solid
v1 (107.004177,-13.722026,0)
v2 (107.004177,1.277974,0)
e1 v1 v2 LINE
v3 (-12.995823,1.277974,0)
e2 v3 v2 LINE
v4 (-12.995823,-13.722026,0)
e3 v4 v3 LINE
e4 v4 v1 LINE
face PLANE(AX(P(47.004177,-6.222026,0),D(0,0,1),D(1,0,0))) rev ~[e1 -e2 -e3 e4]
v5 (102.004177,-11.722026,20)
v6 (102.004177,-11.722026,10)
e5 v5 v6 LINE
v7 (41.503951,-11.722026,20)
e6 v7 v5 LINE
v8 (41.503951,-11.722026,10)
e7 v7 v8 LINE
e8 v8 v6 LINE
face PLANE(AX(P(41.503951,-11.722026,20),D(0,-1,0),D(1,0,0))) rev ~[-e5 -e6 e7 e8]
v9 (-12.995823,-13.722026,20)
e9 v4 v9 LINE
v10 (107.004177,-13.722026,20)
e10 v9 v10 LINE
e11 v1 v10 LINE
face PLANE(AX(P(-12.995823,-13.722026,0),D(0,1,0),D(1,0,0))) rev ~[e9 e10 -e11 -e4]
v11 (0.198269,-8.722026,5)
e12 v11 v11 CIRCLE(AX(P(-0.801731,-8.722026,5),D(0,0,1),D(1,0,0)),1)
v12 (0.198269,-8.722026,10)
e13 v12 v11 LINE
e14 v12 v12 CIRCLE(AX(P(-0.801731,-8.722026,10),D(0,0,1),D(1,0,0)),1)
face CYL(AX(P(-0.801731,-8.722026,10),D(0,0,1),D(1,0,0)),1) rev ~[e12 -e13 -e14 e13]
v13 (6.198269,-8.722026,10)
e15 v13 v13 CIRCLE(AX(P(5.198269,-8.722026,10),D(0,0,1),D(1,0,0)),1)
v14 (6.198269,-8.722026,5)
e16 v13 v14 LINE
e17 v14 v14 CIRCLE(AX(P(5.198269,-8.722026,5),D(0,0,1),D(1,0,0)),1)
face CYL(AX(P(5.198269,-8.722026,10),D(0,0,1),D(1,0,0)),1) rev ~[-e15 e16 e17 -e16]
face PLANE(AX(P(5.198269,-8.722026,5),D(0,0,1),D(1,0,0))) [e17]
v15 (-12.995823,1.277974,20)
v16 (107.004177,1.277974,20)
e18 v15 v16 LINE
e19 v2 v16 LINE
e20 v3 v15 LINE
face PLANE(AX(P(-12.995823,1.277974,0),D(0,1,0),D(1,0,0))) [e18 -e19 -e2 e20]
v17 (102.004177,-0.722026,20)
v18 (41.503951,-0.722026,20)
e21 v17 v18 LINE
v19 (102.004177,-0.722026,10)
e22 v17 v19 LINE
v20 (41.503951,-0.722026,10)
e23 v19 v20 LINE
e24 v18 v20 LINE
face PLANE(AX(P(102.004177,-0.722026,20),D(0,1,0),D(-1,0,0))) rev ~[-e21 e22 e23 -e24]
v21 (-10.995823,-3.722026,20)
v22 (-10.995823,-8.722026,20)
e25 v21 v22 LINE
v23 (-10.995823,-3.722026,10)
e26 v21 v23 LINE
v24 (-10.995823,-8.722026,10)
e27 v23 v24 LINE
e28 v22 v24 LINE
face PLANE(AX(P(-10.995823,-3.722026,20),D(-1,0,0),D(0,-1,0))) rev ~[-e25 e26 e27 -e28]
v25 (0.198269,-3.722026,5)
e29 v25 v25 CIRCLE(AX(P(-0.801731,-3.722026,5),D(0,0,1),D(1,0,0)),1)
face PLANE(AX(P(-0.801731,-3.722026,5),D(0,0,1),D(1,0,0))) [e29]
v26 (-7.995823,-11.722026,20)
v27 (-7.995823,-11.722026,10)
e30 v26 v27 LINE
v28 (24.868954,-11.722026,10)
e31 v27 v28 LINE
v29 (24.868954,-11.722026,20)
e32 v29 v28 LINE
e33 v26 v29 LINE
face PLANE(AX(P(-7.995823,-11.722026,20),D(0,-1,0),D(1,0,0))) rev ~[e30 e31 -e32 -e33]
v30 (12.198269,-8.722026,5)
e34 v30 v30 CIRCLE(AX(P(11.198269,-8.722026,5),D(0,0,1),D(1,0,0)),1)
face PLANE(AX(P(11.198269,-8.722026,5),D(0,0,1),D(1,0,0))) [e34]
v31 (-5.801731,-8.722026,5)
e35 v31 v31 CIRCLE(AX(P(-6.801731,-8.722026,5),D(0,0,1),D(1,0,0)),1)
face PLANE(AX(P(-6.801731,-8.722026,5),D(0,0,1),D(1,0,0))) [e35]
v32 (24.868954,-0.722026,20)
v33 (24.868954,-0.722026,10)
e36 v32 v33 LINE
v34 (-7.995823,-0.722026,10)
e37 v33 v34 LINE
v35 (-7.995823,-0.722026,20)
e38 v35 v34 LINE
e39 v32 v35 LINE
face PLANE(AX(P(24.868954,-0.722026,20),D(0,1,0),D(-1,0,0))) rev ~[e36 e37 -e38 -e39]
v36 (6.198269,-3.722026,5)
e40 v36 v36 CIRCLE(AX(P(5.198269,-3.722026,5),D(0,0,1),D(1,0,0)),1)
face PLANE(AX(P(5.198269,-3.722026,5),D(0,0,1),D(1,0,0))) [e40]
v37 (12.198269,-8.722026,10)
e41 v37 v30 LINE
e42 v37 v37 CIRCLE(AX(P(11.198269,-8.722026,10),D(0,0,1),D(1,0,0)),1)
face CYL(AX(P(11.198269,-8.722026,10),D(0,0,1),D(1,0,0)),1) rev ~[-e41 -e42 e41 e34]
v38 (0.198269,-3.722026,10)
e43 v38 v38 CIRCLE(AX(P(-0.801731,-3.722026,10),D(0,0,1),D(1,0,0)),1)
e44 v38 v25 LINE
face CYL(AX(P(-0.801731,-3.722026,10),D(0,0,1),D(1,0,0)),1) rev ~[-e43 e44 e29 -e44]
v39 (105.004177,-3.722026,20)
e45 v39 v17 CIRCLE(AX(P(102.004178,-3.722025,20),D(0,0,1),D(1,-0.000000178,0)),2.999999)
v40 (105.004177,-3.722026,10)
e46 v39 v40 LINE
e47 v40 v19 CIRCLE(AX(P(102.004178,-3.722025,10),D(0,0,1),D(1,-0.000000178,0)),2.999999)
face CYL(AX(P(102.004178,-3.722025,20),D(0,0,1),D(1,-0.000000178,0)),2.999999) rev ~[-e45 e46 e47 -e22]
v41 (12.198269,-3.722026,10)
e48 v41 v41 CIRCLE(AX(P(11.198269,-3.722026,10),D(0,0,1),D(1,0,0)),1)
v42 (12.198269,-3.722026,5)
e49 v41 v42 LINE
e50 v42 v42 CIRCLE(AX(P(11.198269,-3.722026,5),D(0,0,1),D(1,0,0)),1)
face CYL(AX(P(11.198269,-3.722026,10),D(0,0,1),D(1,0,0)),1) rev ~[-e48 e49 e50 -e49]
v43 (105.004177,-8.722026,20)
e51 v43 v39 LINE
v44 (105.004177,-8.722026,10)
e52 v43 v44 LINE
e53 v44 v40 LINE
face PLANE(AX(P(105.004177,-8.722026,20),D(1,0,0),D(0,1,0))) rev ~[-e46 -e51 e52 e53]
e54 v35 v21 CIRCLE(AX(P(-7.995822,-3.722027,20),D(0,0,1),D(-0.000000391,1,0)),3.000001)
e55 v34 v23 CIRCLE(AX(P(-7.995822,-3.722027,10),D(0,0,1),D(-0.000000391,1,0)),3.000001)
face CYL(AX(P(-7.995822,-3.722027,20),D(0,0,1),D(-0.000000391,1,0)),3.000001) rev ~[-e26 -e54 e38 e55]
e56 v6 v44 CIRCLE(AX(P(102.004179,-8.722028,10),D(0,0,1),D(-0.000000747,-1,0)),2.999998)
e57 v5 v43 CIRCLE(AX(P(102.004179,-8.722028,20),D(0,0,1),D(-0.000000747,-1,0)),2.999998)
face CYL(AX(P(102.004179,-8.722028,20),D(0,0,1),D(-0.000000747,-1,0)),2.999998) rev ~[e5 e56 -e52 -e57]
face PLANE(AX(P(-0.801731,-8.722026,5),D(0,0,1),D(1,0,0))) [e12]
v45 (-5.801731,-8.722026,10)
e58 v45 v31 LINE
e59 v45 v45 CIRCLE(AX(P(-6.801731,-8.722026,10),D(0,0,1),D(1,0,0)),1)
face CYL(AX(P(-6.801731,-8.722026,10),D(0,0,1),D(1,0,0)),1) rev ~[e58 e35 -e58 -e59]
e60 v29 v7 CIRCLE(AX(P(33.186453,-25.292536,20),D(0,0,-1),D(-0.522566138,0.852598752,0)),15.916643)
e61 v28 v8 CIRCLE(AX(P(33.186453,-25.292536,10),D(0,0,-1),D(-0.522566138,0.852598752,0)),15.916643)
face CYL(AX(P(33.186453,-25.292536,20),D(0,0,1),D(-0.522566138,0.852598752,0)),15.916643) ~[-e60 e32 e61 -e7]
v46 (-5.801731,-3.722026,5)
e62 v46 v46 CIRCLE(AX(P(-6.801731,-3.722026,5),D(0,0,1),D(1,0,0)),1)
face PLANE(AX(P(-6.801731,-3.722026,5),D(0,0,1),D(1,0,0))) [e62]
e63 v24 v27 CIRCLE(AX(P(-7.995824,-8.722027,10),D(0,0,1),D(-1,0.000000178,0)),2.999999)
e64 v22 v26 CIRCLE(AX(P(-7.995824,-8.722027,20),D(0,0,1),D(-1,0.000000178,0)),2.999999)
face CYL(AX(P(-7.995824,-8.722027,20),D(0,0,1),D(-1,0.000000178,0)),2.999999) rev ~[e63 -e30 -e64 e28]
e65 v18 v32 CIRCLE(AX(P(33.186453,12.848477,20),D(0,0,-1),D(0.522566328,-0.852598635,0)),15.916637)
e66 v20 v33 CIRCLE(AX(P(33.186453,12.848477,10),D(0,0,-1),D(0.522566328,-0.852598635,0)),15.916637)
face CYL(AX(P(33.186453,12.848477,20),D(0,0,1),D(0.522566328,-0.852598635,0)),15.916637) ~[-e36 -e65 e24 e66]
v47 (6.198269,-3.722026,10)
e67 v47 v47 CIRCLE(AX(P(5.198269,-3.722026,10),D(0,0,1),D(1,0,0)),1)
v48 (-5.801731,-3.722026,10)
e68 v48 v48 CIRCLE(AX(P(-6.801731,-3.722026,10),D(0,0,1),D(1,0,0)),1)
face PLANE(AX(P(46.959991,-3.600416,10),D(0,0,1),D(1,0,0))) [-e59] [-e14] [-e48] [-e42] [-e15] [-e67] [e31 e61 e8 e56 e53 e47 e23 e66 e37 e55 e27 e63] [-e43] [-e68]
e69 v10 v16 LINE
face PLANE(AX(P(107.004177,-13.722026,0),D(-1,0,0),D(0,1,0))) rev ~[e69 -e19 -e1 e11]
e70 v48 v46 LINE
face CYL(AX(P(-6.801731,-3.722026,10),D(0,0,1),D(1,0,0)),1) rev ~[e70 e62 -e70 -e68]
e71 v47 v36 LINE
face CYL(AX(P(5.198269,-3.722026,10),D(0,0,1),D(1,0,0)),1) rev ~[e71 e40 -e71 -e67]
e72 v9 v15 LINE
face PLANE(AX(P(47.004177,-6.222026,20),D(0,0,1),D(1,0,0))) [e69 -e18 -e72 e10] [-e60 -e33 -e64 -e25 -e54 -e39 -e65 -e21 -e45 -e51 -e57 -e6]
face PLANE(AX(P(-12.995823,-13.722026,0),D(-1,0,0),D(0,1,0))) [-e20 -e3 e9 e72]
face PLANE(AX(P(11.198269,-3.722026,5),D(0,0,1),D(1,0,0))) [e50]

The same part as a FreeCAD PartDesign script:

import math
import FreeCAD as App
import Part
import Sketcher
from FreeCAD import Vector
Q = App.Units.Quantity


def add_polygon(sketch, points):
    """Adds a closed chain of lines whose ends are joined by coincident constraints."""
    first, n = sketch.GeometryCount, len(points)
    for a, b in zip(points, points[1:] + points[:1]):
        sketch.addGeometry(Part.LineSegment(App.Vector(*a, 0), App.Vector(*b, 0)), False)
    for i in range(n):
        sketch.addConstraint(Sketcher.Constraint("Coincident", first + i, 2, first + (i + 1) % n, 1))

doc = App.newDocument("Part")
body = doc.addObject("PartDesign::Body", "Body")

# Sketch on XY plane
sketch1 = body.newObject("Sketcher::SketchObject", "Sketch")
sketch1.AttachmentSupport = (doc.getObject("XY_Plane"), [""])
sketch1.MapMode = "FlatFace"
add_polygon(sketch1, [(-13, 1), (-13, -14), (107, -14), (107, 1)])  # lines 0-3
sketch1.addConstraint([
    Sketcher.Constraint("Vertical", 0),
    Sketcher.Constraint("Horizontal", 1),
    Sketcher.Constraint("Vertical", 2),
    Sketcher.Constraint("Horizontal", 3),
    Sketcher.Constraint("DistanceX", 1, 1, 1, 2, Q("120 mm")),
    Sketcher.Constraint("DistanceY", 0, 2, 0, 1, Q("15 mm")),
    Sketcher.Constraint("DistanceX", 0, 2, -1, 1, Q("12.995823 mm")),
    Sketcher.Constraint("DistanceY", 0, 2, -1, 1, Q("13.722026 mm")),
])
pad1 = body.newObject("PartDesign::Pad", "Pad")
pad1.Profile = sketch1
pad1.Length = 20

# Sketch on XY plane
sketch2 = body.newObject("Sketcher::SketchObject", "Sketch001")
sketch2.AttachmentSupport = (doc.getObject("XY_Plane"), [""])
sketch2.MapMode = "FlatFace"
sketch2.AttachmentOffset = App.Placement(Vector(0, 0, 20), App.Rotation())
sketch2.addGeometry([
    Part.LineSegment(Vector(24.9, -0.7, 0), Vector(-8, -0.7, 0)),  # 0
    Part.ArcOfCircle(Part.Circle(Vector(-8, -3.7, 0), Vector(0, 0, 1), 3), math.radians(90), math.radians(180)),  # 1
    Part.LineSegment(Vector(-11, -3.7, 0), Vector(-11, -8.7, 0)),  # 2
    Part.ArcOfCircle(Part.Circle(Vector(-8, -8.7, 0), Vector(0, 0, 1), 3), math.radians(180), math.radians(270)),  # 3
    Part.LineSegment(Vector(-8, -11.7, 0), Vector(24.9, -11.7, 0)),  # 4
    Part.ArcOfCircle(Part.Circle(Vector(33.2, -25.3, 0), Vector(0, 0, 1), 15.9), math.radians(58), math.radians(122)),  # 5
    Part.LineSegment(Vector(41.5, -11.7, 0), Vector(102, -11.7, 0)),  # 6
    Part.ArcOfCircle(Part.Circle(Vector(102, -8.7, 0), Vector(0, 0, 1), 3), math.radians(-90), math.radians(0)),  # 7
    Part.LineSegment(Vector(105, -8.7, 0), Vector(105, -3.7, 0)),  # 8
    Part.ArcOfCircle(Part.Circle(Vector(102, -3.7, 0), Vector(0, 0, 1), 3), math.radians(0), math.radians(90)),  # 9
    Part.LineSegment(Vector(102, -0.7, 0), Vector(41.5, -0.7, 0)),  # 10
    Part.ArcOfCircle(Part.Circle(Vector(33.2, 12.8, 0), Vector(0, 0, 1), 15.9), math.radians(-122), math.radians(-58)),  # 11
], False)
sketch2.addConstraint([
    Sketcher.Constraint("Tangent", 0, 2, 1, 1),
    Sketcher.Constraint("Tangent", 1, 2, 2, 1),
    Sketcher.Constraint("Tangent", 2, 2, 3, 1),
    Sketcher.Constraint("Tangent", 3, 2, 4, 1),
    Sketcher.Constraint("Coincident", 4, 2, 5, 2),
    Sketcher.Constraint("Coincident", 5, 1, 6, 1),
    Sketcher.Constraint("Tangent", 6, 2, 7, 1),
    Sketcher.Constraint("Tangent", 7, 2, 8, 1),
    Sketcher.Constraint("Tangent", 8, 2, 9, 1),
    Sketcher.Constraint("Tangent", 9, 2, 10, 1),
    Sketcher.Constraint("Coincident", 10, 2, 11, 2),
    Sketcher.Constraint("Coincident", 11, 1, 0, 1),
    Sketcher.Constraint("Horizontal", 0),
    Sketcher.Constraint("Vertical", 2),
    Sketcher.Constraint("Horizontal", 4),
    Sketcher.Constraint("Horizontal", 6),
    Sketcher.Constraint("Vertical", 8),
    Sketcher.Constraint("Horizontal", 10),
    Sketcher.Constraint("Equal", 1, 3),
    Sketcher.Constraint("Equal", 3, 7),
    Sketcher.Constraint("Equal", 7, 9),
    Sketcher.Constraint("Horizontal", 3, 3, 7, 3),
    Sketcher.Constraint("Horizontal", 1, 3, 9, 3),
    Sketcher.Constraint("Vertical", 5, 3, 11, 3),
    Sketcher.Constraint("Vertical", 5, 1, 10, 2),
    Sketcher.Constraint("Radius", 1, Q("3.000001 mm")),
    Sketcher.Constraint("DistanceY", 2, 2, 2, 1, Q("5 mm")),
    Sketcher.Constraint("DistanceX", 1, 3, 7, 3, Q("110.000001 mm")),
    Sketcher.Constraint("Radius", 5, Q("15.916643 mm")),
    Sketcher.Constraint("Radius", 11, Q("15.916637 mm")),
    Sketcher.Constraint("DistanceX", 4, 2, 5, 3, Q("8.317499 mm")),
    Sketcher.Constraint("DistanceX", 0, 2, 0, 1, Q("32.864777 mm")),
    Sketcher.Constraint("DistanceX", 1, 3, -1, 1, Q("7.995822 mm")),
    Sketcher.Constraint("DistanceY", 7, 3, -1, 1, Q("8.722028 mm")),
])
pocket1 = body.newObject("PartDesign::Pocket", "Pocket")
pocket1.Profile = sketch2
pocket1.Length = 10

# Sketch on XY plane
sketch3 = body.newObject("Sketcher::SketchObject", "Sketch002")
sketch3.AttachmentSupport = (doc.getObject("XY_Plane"), [""])
sketch3.MapMode = "FlatFace"
sketch3.AttachmentOffset = App.Placement(Vector(0, 0, 10), App.Rotation())
sketch3.addGeometry([
    Part.Circle(Vector(-6.8, -3.7, 0), Vector(0, 0, 1), 1),  # 0
    Part.Circle(Vector(-0.8, -3.7, 0), Vector(0, 0, 1), 1),  # 1
    Part.Circle(Vector(5.2, -3.7, 0), Vector(0, 0, 1), 1),  # 2
    Part.Circle(Vector(11.2, -3.7, 0), Vector(0, 0, 1), 1),  # 3
    Part.Circle(Vector(11.2, -8.7, 0), Vector(0, 0, 1), 1),  # 4
    Part.Circle(Vector(5.2, -8.7, 0), Vector(0, 0, 1), 1),  # 5
    Part.Circle(Vector(-0.8, -8.7, 0), Vector(0, 0, 1), 1),  # 6
    Part.Circle(Vector(-6.8, -8.7, 0), Vector(0, 0, 1), 1),  # 7
], False)
sketch3.addConstraint([
    Sketcher.Constraint("Equal", 0, 1),
    Sketcher.Constraint("Equal", 1, 2),
    Sketcher.Constraint("Equal", 2, 3),
    Sketcher.Constraint("Equal", 3, 4),
    Sketcher.Constraint("Equal", 4, 5),
    Sketcher.Constraint("Equal", 5, 6),
    Sketcher.Constraint("Equal", 6, 7),
    Sketcher.Constraint("Horizontal", 0, 3, 1, 3),
    Sketcher.Constraint("Horizontal", 1, 3, 2, 3),
    Sketcher.Constraint("Horizontal", 2, 3, 3, 3),
    Sketcher.Constraint("Horizontal", 4, 3, 5, 3),
    Sketcher.Constraint("Horizontal", 5, 3, 6, 3),
    Sketcher.Constraint("Horizontal", 6, 3, 7, 3),
    Sketcher.Constraint("Vertical", 3, 3, 4, 3),
    Sketcher.Constraint("Vertical", 2, 3, 5, 3),
    Sketcher.Constraint("Vertical", 1, 3, 6, 3),
    Sketcher.Constraint("Vertical", 0, 3, 7, 3),
    Sketcher.Constraint("Diameter", 0, Q("2 mm")),
    Sketcher.Constraint("DistanceX", 0, 3, 1, 3, Q("6 mm")),
    Sketcher.Constraint("DistanceX", 1, 3, 2, 3, Q("6 mm")),
    Sketcher.Constraint("DistanceX", 2, 3, 3, 3, Q("6 mm")),
    Sketcher.Constraint("DistanceY", 4, 3, 3, 3, Q("5 mm")),
    Sketcher.Constraint("DistanceX", 0, 3, -1, 1, Q("6.801731 mm")),
    Sketcher.Constraint("DistanceY", 0, 3, -1, 1, Q("3.722026 mm")),
])
pocket2 = body.newObject("PartDesign::Pocket", "Pocket001")
pocket2.Profile = sketch3
pocket2.Length = 5

doc.recompute()
